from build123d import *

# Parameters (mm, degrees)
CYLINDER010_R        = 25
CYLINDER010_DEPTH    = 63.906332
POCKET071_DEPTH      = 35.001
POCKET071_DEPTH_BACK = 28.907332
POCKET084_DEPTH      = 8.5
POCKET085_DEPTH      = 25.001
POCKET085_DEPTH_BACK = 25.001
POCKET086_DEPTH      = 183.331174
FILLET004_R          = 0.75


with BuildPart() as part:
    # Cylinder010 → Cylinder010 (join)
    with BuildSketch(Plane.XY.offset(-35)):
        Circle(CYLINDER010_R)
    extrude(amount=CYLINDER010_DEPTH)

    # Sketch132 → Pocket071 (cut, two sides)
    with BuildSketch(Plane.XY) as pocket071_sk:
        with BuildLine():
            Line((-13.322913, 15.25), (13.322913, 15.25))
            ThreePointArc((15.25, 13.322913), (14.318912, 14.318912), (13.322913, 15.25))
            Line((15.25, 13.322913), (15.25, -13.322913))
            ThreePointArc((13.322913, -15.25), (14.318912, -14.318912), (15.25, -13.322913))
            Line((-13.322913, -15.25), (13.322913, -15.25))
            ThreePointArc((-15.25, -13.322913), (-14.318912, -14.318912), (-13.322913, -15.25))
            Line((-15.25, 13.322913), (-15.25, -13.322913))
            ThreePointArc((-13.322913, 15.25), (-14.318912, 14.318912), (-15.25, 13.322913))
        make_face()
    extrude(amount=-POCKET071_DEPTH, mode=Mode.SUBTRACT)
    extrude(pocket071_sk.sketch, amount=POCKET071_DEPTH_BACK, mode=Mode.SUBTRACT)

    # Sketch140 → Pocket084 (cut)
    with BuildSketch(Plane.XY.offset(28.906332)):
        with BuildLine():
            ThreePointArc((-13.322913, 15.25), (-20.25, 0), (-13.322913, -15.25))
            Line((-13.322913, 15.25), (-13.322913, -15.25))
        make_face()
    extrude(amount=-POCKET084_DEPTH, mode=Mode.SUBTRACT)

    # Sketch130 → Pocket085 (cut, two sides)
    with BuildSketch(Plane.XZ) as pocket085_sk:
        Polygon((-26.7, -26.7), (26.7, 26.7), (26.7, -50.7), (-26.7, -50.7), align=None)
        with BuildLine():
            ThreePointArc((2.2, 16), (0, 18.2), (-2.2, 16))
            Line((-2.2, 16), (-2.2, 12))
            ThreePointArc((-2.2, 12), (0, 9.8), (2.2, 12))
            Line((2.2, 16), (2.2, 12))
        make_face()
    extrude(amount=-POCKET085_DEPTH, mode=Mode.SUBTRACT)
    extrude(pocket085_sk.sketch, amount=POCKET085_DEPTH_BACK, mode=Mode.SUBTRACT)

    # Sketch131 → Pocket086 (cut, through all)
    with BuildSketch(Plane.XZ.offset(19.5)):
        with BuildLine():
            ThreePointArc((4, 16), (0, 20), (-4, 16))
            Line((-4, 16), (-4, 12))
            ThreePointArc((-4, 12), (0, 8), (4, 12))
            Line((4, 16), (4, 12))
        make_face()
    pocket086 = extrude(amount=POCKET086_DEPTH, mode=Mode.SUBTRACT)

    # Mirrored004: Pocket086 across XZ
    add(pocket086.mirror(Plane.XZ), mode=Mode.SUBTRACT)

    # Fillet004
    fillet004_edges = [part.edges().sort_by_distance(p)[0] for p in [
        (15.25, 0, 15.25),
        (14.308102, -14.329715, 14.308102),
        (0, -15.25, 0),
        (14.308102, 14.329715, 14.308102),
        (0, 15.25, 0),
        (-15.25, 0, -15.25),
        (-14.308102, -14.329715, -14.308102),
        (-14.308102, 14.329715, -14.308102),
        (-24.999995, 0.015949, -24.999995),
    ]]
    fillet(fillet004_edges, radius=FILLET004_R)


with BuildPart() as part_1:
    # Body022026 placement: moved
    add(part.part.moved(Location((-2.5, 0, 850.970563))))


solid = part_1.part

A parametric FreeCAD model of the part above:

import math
import FreeCAD as App
import Part
import Sketcher
from FreeCAD import Vector
Q = App.Units.Quantity


def edges_at(feature, points):
    """Names of the edges that pass closest to the given points."""
    edges = feature.Shape.Edges
    near = lambda p: min(range(len(edges)), key=lambda i: edges[i].distToShape(Part.Vertex(*p))[0])
    return sorted({f"Edge{near(p) + 1}" for p in points})

doc = App.newDocument("Part")
params = doc.addObject("Spreadsheet::Sheet", "Params")
for row, (alias, value) in enumerate([
    ("sketch1_diameter", "50 mm"),
    ("pad1_length", "63.906332 mm"),
    ("sketch3_radius", "20.250001 mm"),
    ("sketch3_height", "30.5 mm"),
    ("pocket2_length", "8.5 mm"),
    ("sketch4_radius", "2.2 mm"),
    ("sketch4_height", "24 mm"),
    ("sketch4_height2", "4 mm"),
    ("sketch4_width", "53.4 mm"),
    ("sketch5_radius", "4 mm"),
    ("sketch5_height", "4 mm"),
    ("fillet_radius", "0.75 mm"),
], start=1):
    params.set(f"A{row}", alias)
    params.set(f"B{row}", "=" + value)
    params.setAlias(f"B{row}", alias)

body = doc.addObject("PartDesign::Body", "Body")

# Sketch on XY plane
sketch1 = body.newObject("Sketcher::SketchObject", "Sketch")
sketch1.AttachmentSupport = (doc.getObject("XY_Plane"), [""])
sketch1.MapMode = "FlatFace"
sketch1.AttachmentOffset = App.Placement(Vector(0, 0, -35), App.Rotation())
sketch1.addGeometry(Part.Circle(Vector(0, 0, 0), Vector(0, 0, 1), 25), False)
sketch1.addConstraint([
    Sketcher.Constraint("Coincident", 0, 3, -1, 1),
    Sketcher.Constraint("Diameter", 0, Q("50 mm")),
])
sketch1.setExpression("Constraints[1]", "Params.sketch1_diameter")
pad1 = body.newObject("PartDesign::Pad", "Pad")
pad1.Profile = sketch1
pad1.setExpression("Length", "Params.pad1_length")

# Sketch on XY plane
sketch2 = body.newObject("Sketcher::SketchObject", "Sketch001")
sketch2.AttachmentSupport = (doc.getObject("XY_Plane"), [""])
sketch2.MapMode = "FlatFace"
sketch2.addGeometry([
    Part.LineSegment(Vector(13.322913, 15.25, 0), Vector(-13.322913, 15.25, 0)),  # 0
    Part.ArcOfCircle(Part.Circle(Vector(0.000224, -0.000224, 0), Vector(0, 0, 1), 20.250316), math.radians(131.141616), math.radians(138.858384)),  # 1
    Part.LineSegment(Vector(-15.25, 13.322913, 0), Vector(-15.25, -13.322913, 0)),  # 2
    Part.ArcOfCircle(Part.Circle(Vector(0.000224, 0.000224, 0), Vector(0, 0, 1), 20.250316), math.radians(-138.858384), math.radians(-131.141616)),  # 3
    Part.LineSegment(Vector(-13.322913, -15.25, 0), Vector(13.322913, -15.25, 0)),  # 4
    Part.ArcOfCircle(Part.Circle(Vector(-0.000224, 0.000224, 0), Vector(0, 0, 1), 20.250316), math.radians(-48.858384), math.radians(-41.141616)),  # 5
    Part.LineSegment(Vector(15.25, -13.322913, 0), Vector(15.25, 13.322913, 0)),  # 6
    Part.ArcOfCircle(Part.Circle(Vector(-0.000224, -0.000224, 0), Vector(0, 0, 1), 20.250316), math.radians(41.141616), math.radians(48.858384)),  # 7
], False)
sketch2.addConstraint([
    Sketcher.Constraint("Coincident", 0, 2, 1, 1),
    Sketcher.Constraint("Coincident", 1, 2, 2, 1),
    Sketcher.Constraint("Coincident", 2, 2, 3, 1),
    Sketcher.Constraint("Coincident", 3, 2, 4, 1),
    Sketcher.Constraint("Coincident", 4, 2, 5, 1),
    Sketcher.Constraint("Coincident", 5, 2, 6, 1),
    Sketcher.Constraint("Coincident", 6, 2, 7, 1),
    Sketcher.Constraint("Coincident", 7, 2, 0, 1),
    Sketcher.Constraint("Horizontal", 0),
    Sketcher.Constraint("Vertical", 2),
    Sketcher.Constraint("Horizontal", 4),
    Sketcher.Constraint("Vertical", 6),
    Sketcher.Constraint("Equal", 1, 3),
    Sketcher.Constraint("Equal", 3, 5),
    Sketcher.Constraint("Equal", 5, 7),
    Sketcher.Constraint("Symmetric", 1, 3, 5, 3, -1, 1),
    Sketcher.Constraint("Symmetric", 3, 3, 7, 3, -1, 1),
    Sketcher.Constraint("Symmetric", 3, 3, 5, 3, -2),
    Sketcher.Constraint("Horizontal", 2, 2, 5, 2),
    Sketcher.Constraint("Vertical", 0, 2, 3, 2),
    Sketcher.Constraint("Equal", 4, 2),
    Sketcher.Constraint("DistanceY", -1, 1, 0, 2, Q("15.25 mm")),
    Sketcher.Constraint("DistanceX", 1, 2, -1, 1, Q("15.25 mm")),
    Sketcher.Constraint("Radius", 1, Q("20.250316 mm")),
    Sketcher.Constraint("DistanceX", 0, 2, 0, 1, Q("26.645826 mm")),
])
pocket1 = body.newObject("PartDesign::Pocket", "Pocket")
pocket1.Profile = sketch2
pocket1.Type = "ThroughAll"
pocket1.Midplane = True

# Sketch on XY plane
sketch3 = body.newObject("Sketcher::SketchObject", "Sketch002")
sketch3.AttachmentSupport = (doc.getObject("XY_Plane"), [""])
sketch3.MapMode = "FlatFace"
sketch3.AttachmentOffset = App.Placement(Vector(0, 0, 28.906332), App.Rotation())
sketch3.addGeometry([
    Part.ArcOfCircle(Part.Circle(Vector(0, 0, 0), Vector(0, 0, 1), 20), math.radians(131), math.radians(229)),
    Part.LineSegment(Vector(-13, -15, 0), Vector(-13, 15, 0)),
], False)
sketch3.addConstraint([
    Sketcher.Constraint("Coincident", 0, 1, 1, 2),
    Sketcher.Constraint("Coincident", 1, 1, 0, 2),
    Sketcher.Constraint("Vertical", 1),
    Sketcher.Constraint("Coincident", 0, 3, -1, 1),
    Sketcher.Constraint("Radius", 0, Q("20.250001 mm")),
    Sketcher.Constraint("DistanceY", 1, 1, 1, 2, Q("30.5 mm")),
])
sketch3.setExpression("Constraints[4]", "Params.sketch3_radius")
sketch3.setExpression("Constraints[5]", "Params.sketch3_height")
pocket2 = body.newObject("PartDesign::Pocket", "Pocket001")
pocket2.Profile = sketch3
pocket2.setExpression("Length", "Params.pocket2_length")

# Sketch on XZ plane
sketch4 = body.newObject("Sketcher::SketchObject", "Sketch003")
sketch4.AttachmentSupport = (doc.getObject("XZ_Plane"), [""])
sketch4.MapMode = "FlatFace"
sketch4.addGeometry([
    Part.LineSegment(Vector(26.7, 26.7, 0), Vector(-26.7, -26.7, 0)),  # 0
    Part.LineSegment(Vector(-26.7, -26.7, 0), Vector(-26.7, -50.7, 0)),  # 1
    Part.LineSegment(Vector(-26.7, -50.7, 0), Vector(26.7, -50.7, 0)),  # 2
    Part.LineSegment(Vector(26.7, -50.7, 0), Vector(26.7, 26.7, 0)),  # 3
    Part.ArcOfCircle(Part.Circle(Vector(0, 16, 0), Vector(0, 0, 1), 2.2), math.radians(0), math.radians(180)),  # 4
    Part.LineSegment(Vector(-2.2, 16, 0), Vector(-2.2, 12, 0)),  # 5
    Part.ArcOfCircle(Part.Circle(Vector(0, 12, 0), Vector(0, 0, 1), 2.2), math.radians(180), math.radians(360)),  # 6
    Part.LineSegment(Vector(2.2, 12, 0), Vector(2.2, 16, 0)),  # 7
], False)
sketch4.addConstraint([
    Sketcher.Constraint("Coincident", 0, 2, 1, 1),
    Sketcher.Constraint("Coincident", 1, 2, 2, 1),
    Sketcher.Constraint("Coincident", 2, 2, 3, 1),
    Sketcher.Constraint("Coincident", 3, 2, 0, 1),
    Sketcher.Constraint("Tangent", 4, 2, 5, 1),
    Sketcher.Constraint("Tangent", 5, 2, 6, 1),
    Sketcher.Constraint("Tangent", 6, 2, 7, 1),
    Sketcher.Constraint("Tangent", 7, 2, 4, 1),
    Sketcher.Constraint("Vertical", 1),
    Sketcher.Constraint("Horizontal", 2),
    Sketcher.Constraint("Vertical", 3),
    Sketcher.Constraint("Vertical", 5),
    Sketcher.Constraint("Vertical", 7),
    Sketcher.Constraint("Symmetric", 0, 2, 3, 2, -1, 1),
    Sketcher.Constraint("PointOnObject", 4, 3, -2),
    Sketcher.Constraint("Radius", 4, Q("2.2 mm")),
    Sketcher.Constraint("DistanceY", 1, 2, 1, 1, Q("24 mm")),
    Sketcher.Constraint("DistanceY", 5, 2, 5, 1, Q("4 mm")),
    Sketcher.Constraint("Angle", 0, Q("-135 deg")),
    Sketcher.Constraint("DistanceX", 2, 1, 2, 2, Q("53.4 mm")),
    Sketcher.Constraint("DistanceY", -1, 1, 4, 3, Q("16 mm")),
])
sketch4.setExpression("Constraints[15]", "Params.sketch4_radius")
sketch4.setExpression("Constraints[16]", "Params.sketch4_height")
sketch4.setExpression("Constraints[17]", "Params.sketch4_height2")
sketch4.setExpression("Constraints[19]", "Params.sketch4_width")
pocket3 = body.newObject("PartDesign::Pocket", "Pocket002")
pocket3.Profile = sketch4
pocket3.Type = "ThroughAll"
pocket3.Midplane = True

# Sketch on XZ plane
sketch5 = body.newObject("Sketcher::SketchObject", "Sketch004")
sketch5.AttachmentSupport = (doc.getObject("XZ_Plane"), [""])
sketch5.MapMode = "FlatFace"
sketch5.AttachmentOffset = App.Placement(Vector(0, 0, 19.5), App.Rotation())
sketch5.addGeometry([
    Part.ArcOfCircle(Part.Circle(Vector(0, 16, 0), Vector(0, 0, 1), 4), math.radians(0), math.radians(180)),
    Part.LineSegment(Vector(-4, 16, 0), Vector(-4, 12, 0)),
    Part.ArcOfCircle(Part.Circle(Vector(0, 12, 0), Vector(0, 0, 1), 4), math.radians(180), math.radians(360)),
    Part.LineSegment(Vector(4, 12, 0), Vector(4, 16, 0)),
], False)
sketch5.addConstraint([
    Sketcher.Constraint("Tangent", 0, 2, 1, 1),
    Sketcher.Constraint("Tangent", 1, 2, 2, 1),
    Sketcher.Constraint("Tangent", 2, 2, 3, 1),
    Sketcher.Constraint("Tangent", 3, 2, 0, 1),
    Sketcher.Constraint("Vertical", 1),
    Sketcher.Constraint("Vertical", 3),
    Sketcher.Constraint("PointOnObject", 0, 3, -2),
    Sketcher.Constraint("Radius", 0, Q("4 mm")),
    Sketcher.Constraint("DistanceY", 1, 2, 1, 1, Q("4 mm")),
    Sketcher.Constraint("DistanceY", -1, 1, 0, 3, Q("16 mm")),
])
sketch5.setExpression("Constraints[7]", "Params.sketch5_radius")
sketch5.setExpression("Constraints[8]", "Params.sketch5_height")
pocket4 = body.newObject("PartDesign::Pocket", "Pocket003")
pocket4.Profile = sketch5
pocket4.Type = "ThroughAll"
pocket4.Reversed = True
doc.recompute()

mirrored = body.newObject("PartDesign::Mirrored", "Mirrored")
mirrored.Originals = [pocket4]
mirrored.MirrorPlane = (doc.getObject("XZ_Plane"), [""])
body.Tip = mirrored
doc.recompute()

fillet = body.newObject("PartDesign::Fillet", "Fillet")
fillet.Base = (mirrored, edges_at(mirrored, [
    (15.25, 0, 15.25),
    (14.308, -14.33, 14.308),
    (0, -15.25, 0),
    (14.308, 14.33, 14.308),
    (0, 15.25, 0),
    (-15.25, 0, -15.25),
    (-14.308, -14.33, -14.308),
    (-14.308, 14.33, -14.308),
    (0, 25, 0),
]))
fillet.setExpression("Radius", "Params.fillet_radius")
body2 = doc.addObject("PartDesign::Body", "Body001")
doc.recompute()

body.Placement = App.Placement(Vector(-2.5, 0, 850.970563), App.Rotation(Vector(0, 0, 1), 0))
boolean = body2.newObject("PartDesign::Boolean", "Boolean")
boolean.Type = "Fuse"
boolean.addObjects([body])

doc.recompute()
